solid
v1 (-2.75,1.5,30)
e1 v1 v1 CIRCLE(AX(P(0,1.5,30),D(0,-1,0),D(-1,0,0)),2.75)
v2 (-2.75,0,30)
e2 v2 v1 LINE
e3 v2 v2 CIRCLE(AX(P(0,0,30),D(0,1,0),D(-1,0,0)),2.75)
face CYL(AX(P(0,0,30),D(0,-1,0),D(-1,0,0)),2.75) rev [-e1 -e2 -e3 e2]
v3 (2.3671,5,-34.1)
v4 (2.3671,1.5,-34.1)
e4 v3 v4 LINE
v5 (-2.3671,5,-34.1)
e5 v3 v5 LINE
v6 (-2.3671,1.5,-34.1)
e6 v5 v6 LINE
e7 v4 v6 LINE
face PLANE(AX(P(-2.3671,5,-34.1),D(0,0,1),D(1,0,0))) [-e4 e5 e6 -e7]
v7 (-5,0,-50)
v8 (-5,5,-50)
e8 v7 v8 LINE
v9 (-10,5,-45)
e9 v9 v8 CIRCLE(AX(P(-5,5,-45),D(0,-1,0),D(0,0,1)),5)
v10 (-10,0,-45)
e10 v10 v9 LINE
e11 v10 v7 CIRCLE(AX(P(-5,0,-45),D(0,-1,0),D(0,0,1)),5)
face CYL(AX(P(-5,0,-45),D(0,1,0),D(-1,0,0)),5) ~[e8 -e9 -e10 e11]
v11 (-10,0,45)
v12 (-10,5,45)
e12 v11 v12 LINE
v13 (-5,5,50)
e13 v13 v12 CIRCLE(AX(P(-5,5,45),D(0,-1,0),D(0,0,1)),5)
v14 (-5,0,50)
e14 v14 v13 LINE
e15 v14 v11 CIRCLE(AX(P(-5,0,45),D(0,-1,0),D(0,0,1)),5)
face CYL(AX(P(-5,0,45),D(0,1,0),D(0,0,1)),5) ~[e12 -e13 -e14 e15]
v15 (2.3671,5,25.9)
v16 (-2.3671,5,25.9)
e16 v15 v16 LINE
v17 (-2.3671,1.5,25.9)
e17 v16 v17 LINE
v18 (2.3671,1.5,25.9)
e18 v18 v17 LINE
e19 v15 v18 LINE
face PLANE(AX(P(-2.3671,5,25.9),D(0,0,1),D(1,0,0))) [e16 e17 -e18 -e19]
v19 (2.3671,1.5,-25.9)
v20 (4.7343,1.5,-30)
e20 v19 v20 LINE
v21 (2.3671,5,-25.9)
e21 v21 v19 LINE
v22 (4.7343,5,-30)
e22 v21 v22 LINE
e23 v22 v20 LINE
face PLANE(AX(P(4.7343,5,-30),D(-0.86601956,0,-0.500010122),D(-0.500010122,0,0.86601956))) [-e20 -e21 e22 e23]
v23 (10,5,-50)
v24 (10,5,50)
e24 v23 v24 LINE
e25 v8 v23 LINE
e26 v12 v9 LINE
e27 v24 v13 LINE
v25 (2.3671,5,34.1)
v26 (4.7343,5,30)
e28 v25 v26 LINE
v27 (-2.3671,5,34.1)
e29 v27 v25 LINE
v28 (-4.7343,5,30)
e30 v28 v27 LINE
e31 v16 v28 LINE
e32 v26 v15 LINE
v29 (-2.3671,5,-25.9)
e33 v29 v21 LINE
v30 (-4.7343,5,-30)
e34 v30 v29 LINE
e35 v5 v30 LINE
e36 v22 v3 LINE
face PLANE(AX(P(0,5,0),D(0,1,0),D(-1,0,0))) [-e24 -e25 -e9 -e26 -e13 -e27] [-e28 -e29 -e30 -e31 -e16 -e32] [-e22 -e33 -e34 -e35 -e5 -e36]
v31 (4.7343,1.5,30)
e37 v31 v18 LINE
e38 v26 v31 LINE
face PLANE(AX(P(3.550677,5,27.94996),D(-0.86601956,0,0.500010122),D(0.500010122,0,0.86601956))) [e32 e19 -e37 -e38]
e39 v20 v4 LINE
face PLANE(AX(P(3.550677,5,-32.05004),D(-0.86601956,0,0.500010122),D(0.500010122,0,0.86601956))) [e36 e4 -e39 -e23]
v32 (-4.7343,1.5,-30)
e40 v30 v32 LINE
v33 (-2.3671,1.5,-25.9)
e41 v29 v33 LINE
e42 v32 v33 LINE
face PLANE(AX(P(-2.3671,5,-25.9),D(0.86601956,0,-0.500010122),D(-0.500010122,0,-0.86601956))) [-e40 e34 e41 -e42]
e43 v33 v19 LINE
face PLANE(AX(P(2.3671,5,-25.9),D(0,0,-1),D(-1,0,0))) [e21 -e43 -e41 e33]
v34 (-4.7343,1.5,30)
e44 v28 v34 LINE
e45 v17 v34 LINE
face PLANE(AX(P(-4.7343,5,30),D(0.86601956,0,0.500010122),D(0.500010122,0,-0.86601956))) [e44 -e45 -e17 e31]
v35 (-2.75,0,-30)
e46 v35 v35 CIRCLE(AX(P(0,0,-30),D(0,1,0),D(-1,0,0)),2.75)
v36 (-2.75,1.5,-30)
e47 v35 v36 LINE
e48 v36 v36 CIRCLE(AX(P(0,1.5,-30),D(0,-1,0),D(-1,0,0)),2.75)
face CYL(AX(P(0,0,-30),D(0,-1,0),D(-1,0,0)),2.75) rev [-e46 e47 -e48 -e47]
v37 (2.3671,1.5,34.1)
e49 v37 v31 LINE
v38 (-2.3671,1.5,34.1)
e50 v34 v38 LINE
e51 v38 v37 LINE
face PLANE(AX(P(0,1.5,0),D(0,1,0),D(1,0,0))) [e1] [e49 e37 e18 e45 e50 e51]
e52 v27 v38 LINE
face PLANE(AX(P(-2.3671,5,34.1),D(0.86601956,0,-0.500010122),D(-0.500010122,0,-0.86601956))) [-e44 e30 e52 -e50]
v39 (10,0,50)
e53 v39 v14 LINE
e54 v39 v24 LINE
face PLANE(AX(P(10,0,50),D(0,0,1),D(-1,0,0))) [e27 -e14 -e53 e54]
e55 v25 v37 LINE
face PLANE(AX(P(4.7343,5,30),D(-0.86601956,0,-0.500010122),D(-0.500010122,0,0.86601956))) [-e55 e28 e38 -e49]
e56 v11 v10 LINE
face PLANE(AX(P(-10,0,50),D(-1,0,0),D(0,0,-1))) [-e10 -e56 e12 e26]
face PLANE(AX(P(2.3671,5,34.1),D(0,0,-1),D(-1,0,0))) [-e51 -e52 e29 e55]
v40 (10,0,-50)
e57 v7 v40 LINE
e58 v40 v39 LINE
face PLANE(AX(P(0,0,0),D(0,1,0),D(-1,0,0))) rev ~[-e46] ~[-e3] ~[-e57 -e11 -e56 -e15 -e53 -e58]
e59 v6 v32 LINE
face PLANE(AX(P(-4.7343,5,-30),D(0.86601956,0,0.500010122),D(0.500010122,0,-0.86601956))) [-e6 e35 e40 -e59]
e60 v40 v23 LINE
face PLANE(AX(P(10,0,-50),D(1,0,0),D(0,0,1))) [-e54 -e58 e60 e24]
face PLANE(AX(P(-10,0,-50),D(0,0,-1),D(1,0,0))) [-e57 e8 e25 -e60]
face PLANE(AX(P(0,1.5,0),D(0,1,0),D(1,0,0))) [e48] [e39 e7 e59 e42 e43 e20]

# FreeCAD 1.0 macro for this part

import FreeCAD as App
import Part
import Sketcher

V = App.Vector
Q = App.Units.Quantity


def edges_at(feature, points):
    """Names of the edges that pass closest to the given points."""
    edges = feature.Shape.Edges
    near = lambda p: min(range(len(edges)), key=lambda i: edges[i].distToShape(Part.Vertex(*p))[0])
    return sorted({f"Edge{near(p) + 1}" for p in points})


def add_polygon(sketch, points):
    """Adds a closed chain of lines whose ends are joined by coincident constraints."""
    first, n = sketch.GeometryCount, len(points)
    for a, b in zip(points, points[1:] + points[:1]):
        sketch.addGeometry(Part.LineSegment(App.Vector(*a, 0), App.Vector(*b, 0)), False)
    for i in range(n):
        sketch.addConstraint(Sketcher.Constraint("Coincident", first + i, 2, first + (i + 1) % n, 1))

doc = App.newDocument("Part")
body = doc.addObject("PartDesign::Body", "Body")

# Sketch on XZ plane
sketch1 = doc.addObject("Sketcher::SketchObject", "Sketch")
body.addObject(sketch1)
sketch1.AttachmentSupport = (doc.XZ_Plane, [""])
sketch1.MapMode = "FlatFace"
add_polygon(sketch1, [(-10, 50), (10, 50), (10, -50), (-10, -50)])  # lines 0-3
sketch1.addGeometry(Part.Circle(V(0, -30, 0), V(0, 0, 1), 2.8), False)  # 4
sketch1.addGeometry(Part.Circle(V(0, 30, 0), V(0, 0, 1), 2.8), False)  # 5
sketch1.addConstraint([
    Sketcher.Constraint("Horizontal", 0),
    Sketcher.Constraint("Vertical", 1),
    Sketcher.Constraint("Horizontal", 2),
    Sketcher.Constraint("Vertical", 3),
    Sketcher.Constraint("Equal", 4, 5),
    Sketcher.Constraint("Symmetric", 4, 3, 5, 3, -1, 1),
    Sketcher.Constraint("Symmetric", 0, 2, 2, 2, -1, 1),
    Sketcher.Constraint("PointOnObject", 4, 3, -2),
    Sketcher.Constraint("Diameter", 4, Q("5.5 mm")),
    Sketcher.Constraint("DistanceX", 0, 1, 0, 2, Q("20 mm")),
    Sketcher.Constraint("DistanceY", 1, 2, 1, 1, Q("100 mm")),
    Sketcher.Constraint("DistanceY", 5, 3, 0, 2, Q("20 mm")),
])
pad1 = doc.addObject("PartDesign::Pad", "Pad")
body.addObject(pad1)
pad1.Profile = sketch1
pad1.Length = 5
pad1.Reversed = True

# Sketch on XZ plane
sketch2 = doc.addObject("Sketcher::SketchObject", "Sketch001")
body.addObject(sketch2)
sketch2.AttachmentSupport = (doc.XZ_Plane, [""])
sketch2.MapMode = "FlatFace"
sketch2.AttachmentOffset = App.Placement(V(0, 0, -5), App.Rotation())
add_polygon(sketch2, [(4.7, 30), (2.4, 25.9), (-2.4, 25.9), (-4.7, 30), (-2.4, 34.1), (2.4, 34.1)])  # lines 0-5
add_polygon(sketch2, [(4.7, -30), (2.4, -34.1), (-2.4, -34.1), (-4.7, -30), (-2.4, -25.9), (2.4, -25.9)])  # lines 6-11
sketch2.addConstraint([
    Sketcher.Constraint("Horizontal", 1),
    Sketcher.Constraint("Horizontal", 4),
    Sketcher.Constraint("Horizontal", 7),
    Sketcher.Constraint("Horizontal", 10),
    Sketcher.Constraint("Symmetric", 3, 2, 6, 2, -1, 1),
    Sketcher.Constraint("Symmetric", 5, 2, 8, 2, -1, 1),
    Sketcher.Constraint("Symmetric", 0, 2, 9, 2, -1, 1),
    Sketcher.Constraint("Symmetric", 2, 2, 11, 2, -1, 1),
    Sketcher.Constraint("Symmetric", 2, 2, 5, 2, -2),
    Sketcher.Constraint("Parallel", 0, 3),
    Sketcher.Constraint("Parallel", 2, 5),
    Sketcher.Constraint("Parallel", 5, 8),
    Sketcher.Constraint("Parallel", 8, 11),
    Sketcher.Constraint("Vertical", 1, 2, 3, 2),
    Sketcher.Constraint("Vertical", 0, 2, 4, 2),
    Sketcher.Constraint("DistanceY", 1, 2, 3, 2, Q("8.2 mm")),
    Sketcher.Constraint("Angle", 0, Q("-120.0007 deg")),
    Sketcher.Constraint("DistanceY", -1, 1, 2, 2, Q("30 mm")),
    Sketcher.Constraint("DistanceX", 1, 2, 1, 1, Q("4.7342 mm")),
])
pocket1 = doc.addObject("PartDesign::Pocket", "Pocket")
body.addObject(pocket1)
pocket1.Profile = sketch2
pocket1.Length = 3.5
pocket1.Reversed = True
doc.recompute()

fillet = doc.addObject("PartDesign::Fillet", "Fillet")
body.addObject(fillet)
fillet.Base = (pocket1, edges_at(pocket1, [(-10, 2.5, 50), (-10, 2.5, -50)]))
fillet.Radius = 5

doc.recompute()
